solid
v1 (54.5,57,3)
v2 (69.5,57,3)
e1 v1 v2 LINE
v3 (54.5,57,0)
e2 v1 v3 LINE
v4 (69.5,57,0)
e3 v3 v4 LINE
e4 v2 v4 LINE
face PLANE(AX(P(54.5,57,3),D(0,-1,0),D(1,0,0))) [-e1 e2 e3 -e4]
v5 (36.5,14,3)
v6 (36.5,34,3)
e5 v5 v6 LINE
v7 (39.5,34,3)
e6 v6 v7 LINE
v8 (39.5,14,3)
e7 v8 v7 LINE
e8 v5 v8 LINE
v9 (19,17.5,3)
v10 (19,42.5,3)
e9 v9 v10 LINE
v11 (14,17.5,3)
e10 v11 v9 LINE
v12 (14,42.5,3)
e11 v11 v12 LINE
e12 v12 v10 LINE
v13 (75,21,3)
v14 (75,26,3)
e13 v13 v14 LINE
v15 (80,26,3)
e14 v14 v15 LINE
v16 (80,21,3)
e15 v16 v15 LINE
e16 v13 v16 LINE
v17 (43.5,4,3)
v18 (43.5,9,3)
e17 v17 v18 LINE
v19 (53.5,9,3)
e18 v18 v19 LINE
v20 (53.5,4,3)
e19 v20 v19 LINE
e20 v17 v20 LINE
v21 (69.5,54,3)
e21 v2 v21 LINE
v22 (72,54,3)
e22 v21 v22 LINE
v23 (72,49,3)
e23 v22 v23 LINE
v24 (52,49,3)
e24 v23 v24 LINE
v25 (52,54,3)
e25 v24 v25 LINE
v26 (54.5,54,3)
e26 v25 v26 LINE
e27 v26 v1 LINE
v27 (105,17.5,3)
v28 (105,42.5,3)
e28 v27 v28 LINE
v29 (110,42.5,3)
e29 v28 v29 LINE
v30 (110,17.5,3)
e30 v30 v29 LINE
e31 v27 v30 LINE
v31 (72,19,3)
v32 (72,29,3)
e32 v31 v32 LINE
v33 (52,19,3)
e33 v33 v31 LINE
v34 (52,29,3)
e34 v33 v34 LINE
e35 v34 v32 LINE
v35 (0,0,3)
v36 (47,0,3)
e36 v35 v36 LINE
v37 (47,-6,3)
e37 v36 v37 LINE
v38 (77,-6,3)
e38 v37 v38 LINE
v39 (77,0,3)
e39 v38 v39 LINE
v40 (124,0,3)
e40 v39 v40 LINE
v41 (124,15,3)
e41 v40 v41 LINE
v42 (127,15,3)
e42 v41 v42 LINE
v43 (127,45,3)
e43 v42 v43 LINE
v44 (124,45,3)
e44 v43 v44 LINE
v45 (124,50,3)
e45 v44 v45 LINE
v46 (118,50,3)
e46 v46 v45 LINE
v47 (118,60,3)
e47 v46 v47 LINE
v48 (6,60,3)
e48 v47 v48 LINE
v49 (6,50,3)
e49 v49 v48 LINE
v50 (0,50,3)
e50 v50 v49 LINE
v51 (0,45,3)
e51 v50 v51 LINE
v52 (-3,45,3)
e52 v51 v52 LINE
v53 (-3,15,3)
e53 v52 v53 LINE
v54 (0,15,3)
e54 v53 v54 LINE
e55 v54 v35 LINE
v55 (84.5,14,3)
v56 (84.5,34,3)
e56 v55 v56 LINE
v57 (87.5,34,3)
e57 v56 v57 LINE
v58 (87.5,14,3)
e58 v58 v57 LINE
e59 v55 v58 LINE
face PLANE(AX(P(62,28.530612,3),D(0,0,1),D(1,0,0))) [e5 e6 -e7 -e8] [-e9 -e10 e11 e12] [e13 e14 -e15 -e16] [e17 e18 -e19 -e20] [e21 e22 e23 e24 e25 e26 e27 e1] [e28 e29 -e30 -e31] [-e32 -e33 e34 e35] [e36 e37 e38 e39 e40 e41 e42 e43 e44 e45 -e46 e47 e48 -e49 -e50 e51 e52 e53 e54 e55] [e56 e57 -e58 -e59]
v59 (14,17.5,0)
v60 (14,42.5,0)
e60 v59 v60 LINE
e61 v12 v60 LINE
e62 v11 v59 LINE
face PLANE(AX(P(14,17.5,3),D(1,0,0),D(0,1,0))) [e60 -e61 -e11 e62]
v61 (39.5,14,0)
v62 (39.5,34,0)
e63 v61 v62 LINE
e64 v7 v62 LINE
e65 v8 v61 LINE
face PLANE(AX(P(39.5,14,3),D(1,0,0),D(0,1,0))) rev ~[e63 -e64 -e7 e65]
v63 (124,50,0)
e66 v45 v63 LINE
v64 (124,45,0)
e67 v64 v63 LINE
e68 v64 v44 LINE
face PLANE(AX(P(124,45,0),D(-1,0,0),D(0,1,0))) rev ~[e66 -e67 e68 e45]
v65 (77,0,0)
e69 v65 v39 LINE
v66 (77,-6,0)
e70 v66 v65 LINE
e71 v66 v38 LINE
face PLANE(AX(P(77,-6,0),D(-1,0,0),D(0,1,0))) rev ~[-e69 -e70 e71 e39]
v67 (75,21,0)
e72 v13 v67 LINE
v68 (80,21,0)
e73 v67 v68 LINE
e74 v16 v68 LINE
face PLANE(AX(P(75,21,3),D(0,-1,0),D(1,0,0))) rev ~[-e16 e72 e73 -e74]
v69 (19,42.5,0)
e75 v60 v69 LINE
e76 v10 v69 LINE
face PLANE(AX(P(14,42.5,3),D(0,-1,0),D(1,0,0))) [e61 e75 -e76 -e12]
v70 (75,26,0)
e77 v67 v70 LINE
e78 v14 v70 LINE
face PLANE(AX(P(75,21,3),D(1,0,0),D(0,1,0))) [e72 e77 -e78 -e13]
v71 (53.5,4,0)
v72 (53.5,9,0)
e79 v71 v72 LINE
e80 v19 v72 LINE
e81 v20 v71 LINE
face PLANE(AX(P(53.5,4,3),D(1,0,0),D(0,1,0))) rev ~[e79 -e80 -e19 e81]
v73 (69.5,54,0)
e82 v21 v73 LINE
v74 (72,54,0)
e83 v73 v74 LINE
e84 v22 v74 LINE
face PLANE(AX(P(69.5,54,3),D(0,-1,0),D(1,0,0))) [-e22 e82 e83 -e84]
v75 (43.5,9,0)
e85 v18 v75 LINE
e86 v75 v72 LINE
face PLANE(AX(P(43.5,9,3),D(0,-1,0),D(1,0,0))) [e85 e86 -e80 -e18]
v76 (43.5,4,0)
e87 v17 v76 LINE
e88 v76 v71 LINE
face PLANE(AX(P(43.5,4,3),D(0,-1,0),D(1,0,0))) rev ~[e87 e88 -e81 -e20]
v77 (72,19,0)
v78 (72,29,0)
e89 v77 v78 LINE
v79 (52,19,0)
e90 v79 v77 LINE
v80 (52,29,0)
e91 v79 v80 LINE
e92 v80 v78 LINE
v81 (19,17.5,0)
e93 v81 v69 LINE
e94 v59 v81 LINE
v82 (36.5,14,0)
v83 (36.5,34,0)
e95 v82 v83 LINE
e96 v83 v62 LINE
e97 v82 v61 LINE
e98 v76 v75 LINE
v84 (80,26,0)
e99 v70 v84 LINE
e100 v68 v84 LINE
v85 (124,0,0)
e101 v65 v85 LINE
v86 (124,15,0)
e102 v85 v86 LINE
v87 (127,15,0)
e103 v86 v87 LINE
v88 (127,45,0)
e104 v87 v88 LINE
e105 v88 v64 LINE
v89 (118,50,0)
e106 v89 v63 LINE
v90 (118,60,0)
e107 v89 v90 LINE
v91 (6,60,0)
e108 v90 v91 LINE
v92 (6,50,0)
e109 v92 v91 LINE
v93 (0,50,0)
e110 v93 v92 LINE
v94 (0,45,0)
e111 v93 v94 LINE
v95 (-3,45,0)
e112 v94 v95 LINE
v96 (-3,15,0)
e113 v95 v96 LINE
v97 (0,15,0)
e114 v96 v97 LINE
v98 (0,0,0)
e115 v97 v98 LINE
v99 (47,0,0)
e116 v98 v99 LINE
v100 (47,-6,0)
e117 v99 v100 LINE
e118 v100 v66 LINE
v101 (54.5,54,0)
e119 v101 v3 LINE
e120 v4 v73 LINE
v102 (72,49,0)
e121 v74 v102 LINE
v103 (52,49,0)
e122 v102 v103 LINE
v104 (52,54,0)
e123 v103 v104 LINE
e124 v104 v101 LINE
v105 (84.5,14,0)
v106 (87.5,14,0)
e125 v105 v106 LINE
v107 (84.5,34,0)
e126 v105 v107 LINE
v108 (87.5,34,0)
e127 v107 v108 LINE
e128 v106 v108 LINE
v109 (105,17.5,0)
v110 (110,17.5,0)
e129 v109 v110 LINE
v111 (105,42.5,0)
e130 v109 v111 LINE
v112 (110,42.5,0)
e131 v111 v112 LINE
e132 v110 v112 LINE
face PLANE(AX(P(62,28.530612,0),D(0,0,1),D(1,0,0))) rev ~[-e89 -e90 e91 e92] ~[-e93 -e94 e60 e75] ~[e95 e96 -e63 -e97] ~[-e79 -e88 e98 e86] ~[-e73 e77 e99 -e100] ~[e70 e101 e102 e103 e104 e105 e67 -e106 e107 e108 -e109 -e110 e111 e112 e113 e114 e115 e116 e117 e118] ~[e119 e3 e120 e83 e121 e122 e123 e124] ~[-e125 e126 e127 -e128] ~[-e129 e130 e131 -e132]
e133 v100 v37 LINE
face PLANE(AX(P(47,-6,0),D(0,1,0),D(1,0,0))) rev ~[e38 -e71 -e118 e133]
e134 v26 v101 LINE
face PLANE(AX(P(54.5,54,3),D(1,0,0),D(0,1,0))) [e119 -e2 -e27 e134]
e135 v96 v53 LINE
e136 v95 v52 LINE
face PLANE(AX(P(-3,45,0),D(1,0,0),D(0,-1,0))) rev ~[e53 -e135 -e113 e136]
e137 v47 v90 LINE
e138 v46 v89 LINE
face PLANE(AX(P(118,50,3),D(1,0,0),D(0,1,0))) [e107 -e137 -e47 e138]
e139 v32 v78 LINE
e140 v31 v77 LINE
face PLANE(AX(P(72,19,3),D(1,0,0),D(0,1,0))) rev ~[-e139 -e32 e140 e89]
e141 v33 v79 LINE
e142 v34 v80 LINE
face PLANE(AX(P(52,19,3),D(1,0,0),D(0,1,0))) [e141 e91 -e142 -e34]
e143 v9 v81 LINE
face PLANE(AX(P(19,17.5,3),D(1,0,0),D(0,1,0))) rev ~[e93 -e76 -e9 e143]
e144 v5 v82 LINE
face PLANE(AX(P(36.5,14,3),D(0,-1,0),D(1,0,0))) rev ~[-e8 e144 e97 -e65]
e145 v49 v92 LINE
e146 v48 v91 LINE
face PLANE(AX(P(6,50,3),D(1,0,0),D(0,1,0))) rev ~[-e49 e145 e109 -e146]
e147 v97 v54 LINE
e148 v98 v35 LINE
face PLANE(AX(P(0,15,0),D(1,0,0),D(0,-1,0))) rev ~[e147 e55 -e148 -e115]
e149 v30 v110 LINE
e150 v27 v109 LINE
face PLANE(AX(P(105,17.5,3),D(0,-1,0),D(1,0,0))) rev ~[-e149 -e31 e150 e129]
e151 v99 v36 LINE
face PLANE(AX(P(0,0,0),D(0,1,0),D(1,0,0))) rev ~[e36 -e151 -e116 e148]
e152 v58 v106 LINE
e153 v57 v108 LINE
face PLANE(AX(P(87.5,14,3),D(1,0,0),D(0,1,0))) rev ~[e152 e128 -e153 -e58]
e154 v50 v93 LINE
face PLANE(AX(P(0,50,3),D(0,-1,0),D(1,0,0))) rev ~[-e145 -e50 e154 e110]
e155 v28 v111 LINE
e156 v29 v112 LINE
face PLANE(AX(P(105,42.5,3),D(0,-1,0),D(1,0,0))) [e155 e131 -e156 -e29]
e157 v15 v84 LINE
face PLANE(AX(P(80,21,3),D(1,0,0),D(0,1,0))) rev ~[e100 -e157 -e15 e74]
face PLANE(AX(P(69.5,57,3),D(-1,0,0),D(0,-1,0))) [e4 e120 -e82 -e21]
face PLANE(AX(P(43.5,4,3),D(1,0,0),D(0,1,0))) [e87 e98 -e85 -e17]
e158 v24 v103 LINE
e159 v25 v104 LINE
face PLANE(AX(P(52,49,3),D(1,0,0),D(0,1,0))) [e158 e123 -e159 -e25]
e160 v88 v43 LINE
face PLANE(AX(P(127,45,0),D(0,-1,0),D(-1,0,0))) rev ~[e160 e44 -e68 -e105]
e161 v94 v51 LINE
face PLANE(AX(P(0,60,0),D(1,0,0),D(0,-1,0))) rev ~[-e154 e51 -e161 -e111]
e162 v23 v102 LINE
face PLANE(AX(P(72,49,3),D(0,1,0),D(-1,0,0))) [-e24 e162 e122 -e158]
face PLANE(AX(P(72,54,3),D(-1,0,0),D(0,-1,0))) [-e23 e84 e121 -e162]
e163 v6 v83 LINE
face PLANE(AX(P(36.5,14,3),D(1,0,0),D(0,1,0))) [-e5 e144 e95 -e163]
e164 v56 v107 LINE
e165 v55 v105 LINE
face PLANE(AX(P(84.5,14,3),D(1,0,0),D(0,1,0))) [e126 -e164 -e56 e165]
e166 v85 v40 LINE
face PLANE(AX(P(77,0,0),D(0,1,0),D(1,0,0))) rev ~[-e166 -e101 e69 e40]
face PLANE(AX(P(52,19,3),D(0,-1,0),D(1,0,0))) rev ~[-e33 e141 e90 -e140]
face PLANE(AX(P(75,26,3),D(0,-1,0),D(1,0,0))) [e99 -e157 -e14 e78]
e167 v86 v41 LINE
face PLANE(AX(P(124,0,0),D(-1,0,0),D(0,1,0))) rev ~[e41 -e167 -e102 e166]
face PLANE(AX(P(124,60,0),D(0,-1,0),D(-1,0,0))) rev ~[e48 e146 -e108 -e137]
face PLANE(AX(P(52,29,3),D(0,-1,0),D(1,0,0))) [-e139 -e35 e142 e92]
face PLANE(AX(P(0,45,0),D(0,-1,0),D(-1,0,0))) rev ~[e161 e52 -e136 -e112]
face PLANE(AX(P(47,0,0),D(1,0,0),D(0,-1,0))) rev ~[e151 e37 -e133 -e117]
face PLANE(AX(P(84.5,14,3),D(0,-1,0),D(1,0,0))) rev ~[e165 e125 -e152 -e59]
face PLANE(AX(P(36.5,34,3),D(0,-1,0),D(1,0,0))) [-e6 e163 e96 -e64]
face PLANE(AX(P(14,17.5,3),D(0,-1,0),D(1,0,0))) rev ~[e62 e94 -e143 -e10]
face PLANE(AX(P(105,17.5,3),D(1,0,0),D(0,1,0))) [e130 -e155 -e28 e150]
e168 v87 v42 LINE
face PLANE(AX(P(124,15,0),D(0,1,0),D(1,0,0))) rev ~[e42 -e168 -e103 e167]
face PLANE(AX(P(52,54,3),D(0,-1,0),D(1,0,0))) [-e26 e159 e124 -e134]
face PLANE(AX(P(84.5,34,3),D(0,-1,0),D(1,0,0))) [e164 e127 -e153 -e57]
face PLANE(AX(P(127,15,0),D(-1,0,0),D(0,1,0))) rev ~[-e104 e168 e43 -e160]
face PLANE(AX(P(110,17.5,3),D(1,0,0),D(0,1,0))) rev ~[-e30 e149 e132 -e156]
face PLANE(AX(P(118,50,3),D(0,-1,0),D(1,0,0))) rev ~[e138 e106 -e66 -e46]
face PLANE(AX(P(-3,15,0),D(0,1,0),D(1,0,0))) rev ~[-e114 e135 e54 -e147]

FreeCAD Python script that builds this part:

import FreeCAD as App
import Part
import Sketcher


def add_polygon(sketch, points):
    """Adds a closed chain of lines whose ends are joined by coincident constraints."""
    first, n = sketch.GeometryCount, len(points)
    for a, b in zip(points, points[1:] + points[:1]):
        sketch.addGeometry(Part.LineSegment(App.Vector(*a, 0), App.Vector(*b, 0)), False)
    for i in range(n):
        sketch.addConstraint(Sketcher.Constraint("Coincident", first + i, 2, first + (i + 1) % n, 1))

doc = App.newDocument("Part")
body = doc.addObject("PartDesign::Body", "Body")

sketch1 = body.newObject("Sketcher::SketchObject", "Sketch")
sketch1.AttachmentSupport = (doc.getObject("XY_Plane"), [""])
sketch1.MapMode = "FlatFace"
add_polygon(sketch1, [(0, 0), (47, 0), (47, -6), (77, -6), (77, 0), (124, 0), (124, 15), (127, 15), (127, 45), (124, 45), (124, 60), (0, 60), (0, 45), (-3, 45), (-3, 15), (0, 15)])
sketch1.addConstraint([
    Sketcher.Constraint("Horizontal", 0),
    Sketcher.Constraint("Vertical", 1),
    Sketcher.Constraint("Horizontal", 2),
    Sketcher.Constraint("Vertical", 3),
    Sketcher.Constraint("Horizontal", 4),
    Sketcher.Constraint("Vertical", 5),
    Sketcher.Constraint("Horizontal", 6),
    Sketcher.Constraint("Vertical", 7),
    Sketcher.Constraint("Horizontal", 8),
    Sketcher.Constraint("Vertical", 9),
    Sketcher.Constraint("Horizontal", 10),
    Sketcher.Constraint("Vertical", 11),
    Sketcher.Constraint("Horizontal", 12),
    Sketcher.Constraint("Vertical", 13),
    Sketcher.Constraint("Horizontal", 14),
    Sketcher.Constraint("Vertical", 15),
    Sketcher.Constraint("Coincident", 15, 2, -1, 1),
    Sketcher.Constraint("PointOnObject", 3, 2, -1),
    Sketcher.Constraint("PointOnObject", 10, 2, -2),
    Sketcher.Constraint("Horizontal", 8, 2, 11, 2),
    Sketcher.Constraint("Horizontal", 6, 2, 13, 2),
    Sketcher.Constraint("Vertical", 5, 2, 8, 2),
    Sketcher.Constraint("Equal", 0, 4),
    Sketcher.Constraint("Equal", 8, 12),
    Sketcher.Constraint("Equal", 2, 7),
    Sketcher.Constraint("Equal", 5, 9),
    Sketcher.Constraint("DistanceX", 0, 1, 0, 2, 47.0),
    Sketcher.Constraint("DistanceX", 2, 1, 2, 2, 30.0),
    Sketcher.Constraint("DistanceX", 6, 1, 6, 2, 3.0),
    Sketcher.Constraint("DistanceY", 1, 2, 1, 1, 6.0),
    Sketcher.Constraint("DistanceY", 5, 1, 5, 2, 15.0),
])
pad1 = body.newObject("PartDesign::Pad", "Pad")
pad1.Profile = sketch1
pad1.Length = 3

sketch2 = body.newObject("Sketcher::SketchObject", "Sketch001")
sketch2.AttachmentSupport = (doc.getObject("XY_Plane"), [""])
sketch2.MapMode = "FlatFace"
sketch2.AttachmentOffset = App.Placement(App.Vector(0, 0, 3), App.Rotation())
add_polygon(sketch2, [(0, 60), (0, 50), (6, 50), (6, 60)])
add_polygon(sketch2, [(118, 60), (118, 50), (124, 50), (124, 60)])
sketch2.addConstraint([
    Sketcher.Constraint("Vertical", 0),
    Sketcher.Constraint("Horizontal", 1),
    Sketcher.Constraint("Vertical", 2),
    Sketcher.Constraint("Horizontal", 3),
    Sketcher.Constraint("Vertical", 4),
    Sketcher.Constraint("Horizontal", 5),
    Sketcher.Constraint("Vertical", 6),
    Sketcher.Constraint("Horizontal", 7),
    Sketcher.Constraint("PointOnObject", 0, 2, -2),
    Sketcher.Constraint("Horizontal", 1, 2, 4, 2),
    Sketcher.Constraint("Horizontal", 3, 2, 6, 2),
    Sketcher.Constraint("Equal", 3, 5),
    Sketcher.Constraint("DistanceX", 1, 1, 1, 2, 6.0),
    Sketcher.Constraint("DistanceY", 0, 2, 0, 1, 10.0),
    Sketcher.Constraint("DistanceY", -1, 1, 0, 2, 50.0),
    Sketcher.Constraint("DistanceX", -1, 1, 4, 2, 118.0),
])
pocket1 = body.newObject("PartDesign::Pocket", "Pocket")
pocket1.Profile = sketch2
pocket1.Type = "ThroughAll"

sketch3 = body.newObject("Sketcher::SketchObject", "Sketch002")
sketch3.AttachmentSupport = (doc.getObject("XY_Plane"), [""])
sketch3.MapMode = "FlatFace"
sketch3.AttachmentOffset = App.Placement(App.Vector(0, 0, 3), App.Rotation())
add_polygon(sketch3, [(69.5, 57), (54.5, 57), (54.5, 54), (52, 54), (52, 49), (72, 49), (72, 54), (69.5, 54)])
add_polygon(sketch3, [(36.5, 34), (36.5, 14), (39.5, 14), (39.5, 34)])
add_polygon(sketch3, [(84.5, 34), (84.5, 14), (87.5, 14), (87.5, 34)])
add_polygon(sketch3, [(52, 29), (52, 19), (72, 19), (72, 29)])
add_polygon(sketch3, [(43.5, 9), (43.5, 4), (53.5, 4), (53.5, 9)])
add_polygon(sketch3, [(75, 26), (75, 21), (80, 21), (80, 26)])
sketch3.addConstraint([
    Sketcher.Constraint("Horizontal", 0),
    Sketcher.Constraint("Vertical", 1),
    Sketcher.Constraint("Horizontal", 2),
    Sketcher.Constraint("Vertical", 3),
    Sketcher.Constraint("Horizontal", 4),
    Sketcher.Constraint("Vertical", 5),
    Sketcher.Constraint("Horizontal", 6),
    Sketcher.Constraint("Vertical", 7),
    Sketcher.Constraint("Vertical", 8),
    Sketcher.Constraint("Horizontal", 9),
    Sketcher.Constraint("Vertical", 10),
    Sketcher.Constraint("Horizontal", 11),
    Sketcher.Constraint("Vertical", 12),
    Sketcher.Constraint("Horizontal", 13),
    Sketcher.Constraint("Vertical", 14),
    Sketcher.Constraint("Horizontal", 15),
    Sketcher.Constraint("Vertical", 16),
    Sketcher.Constraint("Horizontal", 17),
    Sketcher.Constraint("Vertical", 18),
    Sketcher.Constraint("Horizontal", 19),
    Sketcher.Constraint("Vertical", 20),
    Sketcher.Constraint("Horizontal", 21),
    Sketcher.Constraint("Vertical", 22),
    Sketcher.Constraint("Horizontal", 23),
    Sketcher.Constraint("Vertical", 24),
    Sketcher.Constraint("Horizontal", 25),
    Sketcher.Constraint("Vertical", 26),
    Sketcher.Constraint("Horizontal", 27),
    Sketcher.Constraint("Horizontal", 2, 2, 5, 2),
    Sketcher.Constraint("Horizontal", 9, 2, 12, 2),
    Sketcher.Constraint("Horizontal", 11, 2, 14, 2),
    Sketcher.Constraint("Vertical", 3, 2, 16, 2),
    Sketcher.Constraint("Vertical", 5, 2, 17, 2),
    Sketcher.Constraint("Equal", 2, 6),
    Sketcher.Constraint("Equal", 11, 13),
    Sketcher.Constraint("Equal", 15, 1),
    Sketcher.Constraint("Equal", 27, 3),
    Sketcher.Constraint("Equal", 19, 8),
    Sketcher.Constraint("Equal", 23, 16),
    Sketcher.Constraint("Equal", 5, 20),
    Sketcher.Constraint("Equal", 22, 24),
    Sketcher.Constraint("DistanceX", 0, 2, 0, 1, 15.0),
    Sketcher.Constraint("DistanceX", 4, 1, 4, 2, 20.0),
    Sketcher.Constraint("DistanceX", 9, 1, 9, 2, 3.0),
    Sketcher.Constraint("DistanceX", 21, 1, 21, 2, 10.0),
    Sketcher.Constraint("DistanceX", 25, 1, 25, 2, 5.0),
    Sketcher.Constraint("DistanceY", -1, 1, 0, 2, 57.0),
    Sketcher.Constraint("DistanceX", -1, 1, 2, 2, 52.0),
    Sketcher.Constraint("DistanceY", -1, 1, 8, 2, 14.0),
    Sketcher.Constraint("DistanceY", -1, 1, 16, 2, 19.0),
    Sketcher.Constraint("DistanceY", -1, 1, 20, 2, 4.0),
    Sketcher.Constraint("DistanceX", -1, 1, 24, 2, 75.0),
    Sketcher.Constraint("DistanceY", -1, 1, 24, 2, 21.0),
    Sketcher.Constraint("DistanceX", 8, 2, 1, 2, 18.0),
    Sketcher.Constraint("DistanceX", 6, 2, 12, 2, 15.0),
    Sketcher.Constraint("DistanceX", 9, 2, 20, 2, 4.0),
])
pocket2 = body.newObject("PartDesign::Pocket", "Pocket001")
pocket2.Profile = sketch3
pocket2.Type = "ThroughAll"

sketch4 = body.newObject("Sketcher::SketchObject", "Sketch003")
sketch4.AttachmentSupport = (doc.getObject("XY_Plane"), [""])
sketch4.MapMode = "FlatFace"
sketch4.AttachmentOffset = App.Placement(App.Vector(0, 0, 3), App.Rotation())
add_polygon(sketch4, [(14, 42), (14, 18), (19, 18), (19, 42)])
add_polygon(sketch4, [(105, 42), (105, 18), (110, 18), (110, 42)])
sketch4.addConstraint([
    Sketcher.Constraint("Vertical", 0),
    Sketcher.Constraint("Horizontal", 1),
    Sketcher.Constraint("Vertical", 2),
    Sketcher.Constraint("Horizontal", 3),
    Sketcher.Constraint("Vertical", 4),
    Sketcher.Constraint("Horizontal", 5),
    Sketcher.Constraint("Vertical", 6),
    Sketcher.Constraint("Horizontal", 7),
    Sketcher.Constraint("Horizontal", 1, 2, 4, 2),
    Sketcher.Constraint("Horizontal", 3, 2, 6, 2),
    Sketcher.Constraint("Equal", 3, 5),
    Sketcher.Constraint("DistanceX", 1, 1, 1, 2, 5.0),
    Sketcher.Constraint("DistanceY", 0, 2, 0, 1, 25.0),
    Sketcher.Constraint("DistanceX", -1, 1, 0, 2, 14.0),
    Sketcher.Constraint("DistanceX", -1, 1, 4, 2, 105.0),
    Sketcher.Constraint("DistanceY", -1, 1, 0, 2, 17.5),
])
pocket3 = body.newObject("PartDesign::Pocket", "Pocket002")
pocket3.Profile = sketch4
pocket3.Type = "ThroughAll"

doc.recompute()
